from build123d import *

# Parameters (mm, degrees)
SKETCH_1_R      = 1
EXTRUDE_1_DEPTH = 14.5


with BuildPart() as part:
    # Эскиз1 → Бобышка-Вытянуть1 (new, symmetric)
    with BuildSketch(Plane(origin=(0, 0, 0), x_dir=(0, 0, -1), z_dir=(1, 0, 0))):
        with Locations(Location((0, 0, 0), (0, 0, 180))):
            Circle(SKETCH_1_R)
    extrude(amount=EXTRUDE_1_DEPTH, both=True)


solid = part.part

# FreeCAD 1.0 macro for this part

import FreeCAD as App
import Part
import Sketcher
from FreeCAD import Vector
Q = App.Units.Quantity

doc = App.newDocument("Part")
params = doc.addObject("Spreadsheet::Sheet", "Params")
for row, (alias, value) in enumerate([
    ("sketch1_diameter", "2 mm"),
    ("pad1_length", "29 mm"),
], start=1):
    params.set(f"A{row}", alias)
    params.set(f"B{row}", "=" + value)
    params.setAlias(f"B{row}", alias)

body = doc.addObject("PartDesign::Body", "Body")

sketch1 = body.newObject("Sketcher::SketchObject", "Sketch")
sketch1.AttachmentSupport = (doc.getObject("YZ_Plane"), [""])
sketch1.MapMode = "FlatFace"
sketch1.addGeometry(Part.Circle(Vector(0, 0, 0), Vector(0, 0, 1), 1), False)
sketch1.addConstraint(Sketcher.Constraint("Coincident", 0, 3, -1, 1))
sketch1.addConstraint(Sketcher.Constraint("Diameter", 0, Q("2 mm")))
sketch1.setExpression("Constraints[1]", "Params.sketch1_diameter")
pad1 = body.newObject("PartDesign::Pad", "Pad")
pad1.Profile = sketch1
pad1.setExpression("Length", "Params.pad1_length")
pad1.Midplane = True

doc.recompute()
